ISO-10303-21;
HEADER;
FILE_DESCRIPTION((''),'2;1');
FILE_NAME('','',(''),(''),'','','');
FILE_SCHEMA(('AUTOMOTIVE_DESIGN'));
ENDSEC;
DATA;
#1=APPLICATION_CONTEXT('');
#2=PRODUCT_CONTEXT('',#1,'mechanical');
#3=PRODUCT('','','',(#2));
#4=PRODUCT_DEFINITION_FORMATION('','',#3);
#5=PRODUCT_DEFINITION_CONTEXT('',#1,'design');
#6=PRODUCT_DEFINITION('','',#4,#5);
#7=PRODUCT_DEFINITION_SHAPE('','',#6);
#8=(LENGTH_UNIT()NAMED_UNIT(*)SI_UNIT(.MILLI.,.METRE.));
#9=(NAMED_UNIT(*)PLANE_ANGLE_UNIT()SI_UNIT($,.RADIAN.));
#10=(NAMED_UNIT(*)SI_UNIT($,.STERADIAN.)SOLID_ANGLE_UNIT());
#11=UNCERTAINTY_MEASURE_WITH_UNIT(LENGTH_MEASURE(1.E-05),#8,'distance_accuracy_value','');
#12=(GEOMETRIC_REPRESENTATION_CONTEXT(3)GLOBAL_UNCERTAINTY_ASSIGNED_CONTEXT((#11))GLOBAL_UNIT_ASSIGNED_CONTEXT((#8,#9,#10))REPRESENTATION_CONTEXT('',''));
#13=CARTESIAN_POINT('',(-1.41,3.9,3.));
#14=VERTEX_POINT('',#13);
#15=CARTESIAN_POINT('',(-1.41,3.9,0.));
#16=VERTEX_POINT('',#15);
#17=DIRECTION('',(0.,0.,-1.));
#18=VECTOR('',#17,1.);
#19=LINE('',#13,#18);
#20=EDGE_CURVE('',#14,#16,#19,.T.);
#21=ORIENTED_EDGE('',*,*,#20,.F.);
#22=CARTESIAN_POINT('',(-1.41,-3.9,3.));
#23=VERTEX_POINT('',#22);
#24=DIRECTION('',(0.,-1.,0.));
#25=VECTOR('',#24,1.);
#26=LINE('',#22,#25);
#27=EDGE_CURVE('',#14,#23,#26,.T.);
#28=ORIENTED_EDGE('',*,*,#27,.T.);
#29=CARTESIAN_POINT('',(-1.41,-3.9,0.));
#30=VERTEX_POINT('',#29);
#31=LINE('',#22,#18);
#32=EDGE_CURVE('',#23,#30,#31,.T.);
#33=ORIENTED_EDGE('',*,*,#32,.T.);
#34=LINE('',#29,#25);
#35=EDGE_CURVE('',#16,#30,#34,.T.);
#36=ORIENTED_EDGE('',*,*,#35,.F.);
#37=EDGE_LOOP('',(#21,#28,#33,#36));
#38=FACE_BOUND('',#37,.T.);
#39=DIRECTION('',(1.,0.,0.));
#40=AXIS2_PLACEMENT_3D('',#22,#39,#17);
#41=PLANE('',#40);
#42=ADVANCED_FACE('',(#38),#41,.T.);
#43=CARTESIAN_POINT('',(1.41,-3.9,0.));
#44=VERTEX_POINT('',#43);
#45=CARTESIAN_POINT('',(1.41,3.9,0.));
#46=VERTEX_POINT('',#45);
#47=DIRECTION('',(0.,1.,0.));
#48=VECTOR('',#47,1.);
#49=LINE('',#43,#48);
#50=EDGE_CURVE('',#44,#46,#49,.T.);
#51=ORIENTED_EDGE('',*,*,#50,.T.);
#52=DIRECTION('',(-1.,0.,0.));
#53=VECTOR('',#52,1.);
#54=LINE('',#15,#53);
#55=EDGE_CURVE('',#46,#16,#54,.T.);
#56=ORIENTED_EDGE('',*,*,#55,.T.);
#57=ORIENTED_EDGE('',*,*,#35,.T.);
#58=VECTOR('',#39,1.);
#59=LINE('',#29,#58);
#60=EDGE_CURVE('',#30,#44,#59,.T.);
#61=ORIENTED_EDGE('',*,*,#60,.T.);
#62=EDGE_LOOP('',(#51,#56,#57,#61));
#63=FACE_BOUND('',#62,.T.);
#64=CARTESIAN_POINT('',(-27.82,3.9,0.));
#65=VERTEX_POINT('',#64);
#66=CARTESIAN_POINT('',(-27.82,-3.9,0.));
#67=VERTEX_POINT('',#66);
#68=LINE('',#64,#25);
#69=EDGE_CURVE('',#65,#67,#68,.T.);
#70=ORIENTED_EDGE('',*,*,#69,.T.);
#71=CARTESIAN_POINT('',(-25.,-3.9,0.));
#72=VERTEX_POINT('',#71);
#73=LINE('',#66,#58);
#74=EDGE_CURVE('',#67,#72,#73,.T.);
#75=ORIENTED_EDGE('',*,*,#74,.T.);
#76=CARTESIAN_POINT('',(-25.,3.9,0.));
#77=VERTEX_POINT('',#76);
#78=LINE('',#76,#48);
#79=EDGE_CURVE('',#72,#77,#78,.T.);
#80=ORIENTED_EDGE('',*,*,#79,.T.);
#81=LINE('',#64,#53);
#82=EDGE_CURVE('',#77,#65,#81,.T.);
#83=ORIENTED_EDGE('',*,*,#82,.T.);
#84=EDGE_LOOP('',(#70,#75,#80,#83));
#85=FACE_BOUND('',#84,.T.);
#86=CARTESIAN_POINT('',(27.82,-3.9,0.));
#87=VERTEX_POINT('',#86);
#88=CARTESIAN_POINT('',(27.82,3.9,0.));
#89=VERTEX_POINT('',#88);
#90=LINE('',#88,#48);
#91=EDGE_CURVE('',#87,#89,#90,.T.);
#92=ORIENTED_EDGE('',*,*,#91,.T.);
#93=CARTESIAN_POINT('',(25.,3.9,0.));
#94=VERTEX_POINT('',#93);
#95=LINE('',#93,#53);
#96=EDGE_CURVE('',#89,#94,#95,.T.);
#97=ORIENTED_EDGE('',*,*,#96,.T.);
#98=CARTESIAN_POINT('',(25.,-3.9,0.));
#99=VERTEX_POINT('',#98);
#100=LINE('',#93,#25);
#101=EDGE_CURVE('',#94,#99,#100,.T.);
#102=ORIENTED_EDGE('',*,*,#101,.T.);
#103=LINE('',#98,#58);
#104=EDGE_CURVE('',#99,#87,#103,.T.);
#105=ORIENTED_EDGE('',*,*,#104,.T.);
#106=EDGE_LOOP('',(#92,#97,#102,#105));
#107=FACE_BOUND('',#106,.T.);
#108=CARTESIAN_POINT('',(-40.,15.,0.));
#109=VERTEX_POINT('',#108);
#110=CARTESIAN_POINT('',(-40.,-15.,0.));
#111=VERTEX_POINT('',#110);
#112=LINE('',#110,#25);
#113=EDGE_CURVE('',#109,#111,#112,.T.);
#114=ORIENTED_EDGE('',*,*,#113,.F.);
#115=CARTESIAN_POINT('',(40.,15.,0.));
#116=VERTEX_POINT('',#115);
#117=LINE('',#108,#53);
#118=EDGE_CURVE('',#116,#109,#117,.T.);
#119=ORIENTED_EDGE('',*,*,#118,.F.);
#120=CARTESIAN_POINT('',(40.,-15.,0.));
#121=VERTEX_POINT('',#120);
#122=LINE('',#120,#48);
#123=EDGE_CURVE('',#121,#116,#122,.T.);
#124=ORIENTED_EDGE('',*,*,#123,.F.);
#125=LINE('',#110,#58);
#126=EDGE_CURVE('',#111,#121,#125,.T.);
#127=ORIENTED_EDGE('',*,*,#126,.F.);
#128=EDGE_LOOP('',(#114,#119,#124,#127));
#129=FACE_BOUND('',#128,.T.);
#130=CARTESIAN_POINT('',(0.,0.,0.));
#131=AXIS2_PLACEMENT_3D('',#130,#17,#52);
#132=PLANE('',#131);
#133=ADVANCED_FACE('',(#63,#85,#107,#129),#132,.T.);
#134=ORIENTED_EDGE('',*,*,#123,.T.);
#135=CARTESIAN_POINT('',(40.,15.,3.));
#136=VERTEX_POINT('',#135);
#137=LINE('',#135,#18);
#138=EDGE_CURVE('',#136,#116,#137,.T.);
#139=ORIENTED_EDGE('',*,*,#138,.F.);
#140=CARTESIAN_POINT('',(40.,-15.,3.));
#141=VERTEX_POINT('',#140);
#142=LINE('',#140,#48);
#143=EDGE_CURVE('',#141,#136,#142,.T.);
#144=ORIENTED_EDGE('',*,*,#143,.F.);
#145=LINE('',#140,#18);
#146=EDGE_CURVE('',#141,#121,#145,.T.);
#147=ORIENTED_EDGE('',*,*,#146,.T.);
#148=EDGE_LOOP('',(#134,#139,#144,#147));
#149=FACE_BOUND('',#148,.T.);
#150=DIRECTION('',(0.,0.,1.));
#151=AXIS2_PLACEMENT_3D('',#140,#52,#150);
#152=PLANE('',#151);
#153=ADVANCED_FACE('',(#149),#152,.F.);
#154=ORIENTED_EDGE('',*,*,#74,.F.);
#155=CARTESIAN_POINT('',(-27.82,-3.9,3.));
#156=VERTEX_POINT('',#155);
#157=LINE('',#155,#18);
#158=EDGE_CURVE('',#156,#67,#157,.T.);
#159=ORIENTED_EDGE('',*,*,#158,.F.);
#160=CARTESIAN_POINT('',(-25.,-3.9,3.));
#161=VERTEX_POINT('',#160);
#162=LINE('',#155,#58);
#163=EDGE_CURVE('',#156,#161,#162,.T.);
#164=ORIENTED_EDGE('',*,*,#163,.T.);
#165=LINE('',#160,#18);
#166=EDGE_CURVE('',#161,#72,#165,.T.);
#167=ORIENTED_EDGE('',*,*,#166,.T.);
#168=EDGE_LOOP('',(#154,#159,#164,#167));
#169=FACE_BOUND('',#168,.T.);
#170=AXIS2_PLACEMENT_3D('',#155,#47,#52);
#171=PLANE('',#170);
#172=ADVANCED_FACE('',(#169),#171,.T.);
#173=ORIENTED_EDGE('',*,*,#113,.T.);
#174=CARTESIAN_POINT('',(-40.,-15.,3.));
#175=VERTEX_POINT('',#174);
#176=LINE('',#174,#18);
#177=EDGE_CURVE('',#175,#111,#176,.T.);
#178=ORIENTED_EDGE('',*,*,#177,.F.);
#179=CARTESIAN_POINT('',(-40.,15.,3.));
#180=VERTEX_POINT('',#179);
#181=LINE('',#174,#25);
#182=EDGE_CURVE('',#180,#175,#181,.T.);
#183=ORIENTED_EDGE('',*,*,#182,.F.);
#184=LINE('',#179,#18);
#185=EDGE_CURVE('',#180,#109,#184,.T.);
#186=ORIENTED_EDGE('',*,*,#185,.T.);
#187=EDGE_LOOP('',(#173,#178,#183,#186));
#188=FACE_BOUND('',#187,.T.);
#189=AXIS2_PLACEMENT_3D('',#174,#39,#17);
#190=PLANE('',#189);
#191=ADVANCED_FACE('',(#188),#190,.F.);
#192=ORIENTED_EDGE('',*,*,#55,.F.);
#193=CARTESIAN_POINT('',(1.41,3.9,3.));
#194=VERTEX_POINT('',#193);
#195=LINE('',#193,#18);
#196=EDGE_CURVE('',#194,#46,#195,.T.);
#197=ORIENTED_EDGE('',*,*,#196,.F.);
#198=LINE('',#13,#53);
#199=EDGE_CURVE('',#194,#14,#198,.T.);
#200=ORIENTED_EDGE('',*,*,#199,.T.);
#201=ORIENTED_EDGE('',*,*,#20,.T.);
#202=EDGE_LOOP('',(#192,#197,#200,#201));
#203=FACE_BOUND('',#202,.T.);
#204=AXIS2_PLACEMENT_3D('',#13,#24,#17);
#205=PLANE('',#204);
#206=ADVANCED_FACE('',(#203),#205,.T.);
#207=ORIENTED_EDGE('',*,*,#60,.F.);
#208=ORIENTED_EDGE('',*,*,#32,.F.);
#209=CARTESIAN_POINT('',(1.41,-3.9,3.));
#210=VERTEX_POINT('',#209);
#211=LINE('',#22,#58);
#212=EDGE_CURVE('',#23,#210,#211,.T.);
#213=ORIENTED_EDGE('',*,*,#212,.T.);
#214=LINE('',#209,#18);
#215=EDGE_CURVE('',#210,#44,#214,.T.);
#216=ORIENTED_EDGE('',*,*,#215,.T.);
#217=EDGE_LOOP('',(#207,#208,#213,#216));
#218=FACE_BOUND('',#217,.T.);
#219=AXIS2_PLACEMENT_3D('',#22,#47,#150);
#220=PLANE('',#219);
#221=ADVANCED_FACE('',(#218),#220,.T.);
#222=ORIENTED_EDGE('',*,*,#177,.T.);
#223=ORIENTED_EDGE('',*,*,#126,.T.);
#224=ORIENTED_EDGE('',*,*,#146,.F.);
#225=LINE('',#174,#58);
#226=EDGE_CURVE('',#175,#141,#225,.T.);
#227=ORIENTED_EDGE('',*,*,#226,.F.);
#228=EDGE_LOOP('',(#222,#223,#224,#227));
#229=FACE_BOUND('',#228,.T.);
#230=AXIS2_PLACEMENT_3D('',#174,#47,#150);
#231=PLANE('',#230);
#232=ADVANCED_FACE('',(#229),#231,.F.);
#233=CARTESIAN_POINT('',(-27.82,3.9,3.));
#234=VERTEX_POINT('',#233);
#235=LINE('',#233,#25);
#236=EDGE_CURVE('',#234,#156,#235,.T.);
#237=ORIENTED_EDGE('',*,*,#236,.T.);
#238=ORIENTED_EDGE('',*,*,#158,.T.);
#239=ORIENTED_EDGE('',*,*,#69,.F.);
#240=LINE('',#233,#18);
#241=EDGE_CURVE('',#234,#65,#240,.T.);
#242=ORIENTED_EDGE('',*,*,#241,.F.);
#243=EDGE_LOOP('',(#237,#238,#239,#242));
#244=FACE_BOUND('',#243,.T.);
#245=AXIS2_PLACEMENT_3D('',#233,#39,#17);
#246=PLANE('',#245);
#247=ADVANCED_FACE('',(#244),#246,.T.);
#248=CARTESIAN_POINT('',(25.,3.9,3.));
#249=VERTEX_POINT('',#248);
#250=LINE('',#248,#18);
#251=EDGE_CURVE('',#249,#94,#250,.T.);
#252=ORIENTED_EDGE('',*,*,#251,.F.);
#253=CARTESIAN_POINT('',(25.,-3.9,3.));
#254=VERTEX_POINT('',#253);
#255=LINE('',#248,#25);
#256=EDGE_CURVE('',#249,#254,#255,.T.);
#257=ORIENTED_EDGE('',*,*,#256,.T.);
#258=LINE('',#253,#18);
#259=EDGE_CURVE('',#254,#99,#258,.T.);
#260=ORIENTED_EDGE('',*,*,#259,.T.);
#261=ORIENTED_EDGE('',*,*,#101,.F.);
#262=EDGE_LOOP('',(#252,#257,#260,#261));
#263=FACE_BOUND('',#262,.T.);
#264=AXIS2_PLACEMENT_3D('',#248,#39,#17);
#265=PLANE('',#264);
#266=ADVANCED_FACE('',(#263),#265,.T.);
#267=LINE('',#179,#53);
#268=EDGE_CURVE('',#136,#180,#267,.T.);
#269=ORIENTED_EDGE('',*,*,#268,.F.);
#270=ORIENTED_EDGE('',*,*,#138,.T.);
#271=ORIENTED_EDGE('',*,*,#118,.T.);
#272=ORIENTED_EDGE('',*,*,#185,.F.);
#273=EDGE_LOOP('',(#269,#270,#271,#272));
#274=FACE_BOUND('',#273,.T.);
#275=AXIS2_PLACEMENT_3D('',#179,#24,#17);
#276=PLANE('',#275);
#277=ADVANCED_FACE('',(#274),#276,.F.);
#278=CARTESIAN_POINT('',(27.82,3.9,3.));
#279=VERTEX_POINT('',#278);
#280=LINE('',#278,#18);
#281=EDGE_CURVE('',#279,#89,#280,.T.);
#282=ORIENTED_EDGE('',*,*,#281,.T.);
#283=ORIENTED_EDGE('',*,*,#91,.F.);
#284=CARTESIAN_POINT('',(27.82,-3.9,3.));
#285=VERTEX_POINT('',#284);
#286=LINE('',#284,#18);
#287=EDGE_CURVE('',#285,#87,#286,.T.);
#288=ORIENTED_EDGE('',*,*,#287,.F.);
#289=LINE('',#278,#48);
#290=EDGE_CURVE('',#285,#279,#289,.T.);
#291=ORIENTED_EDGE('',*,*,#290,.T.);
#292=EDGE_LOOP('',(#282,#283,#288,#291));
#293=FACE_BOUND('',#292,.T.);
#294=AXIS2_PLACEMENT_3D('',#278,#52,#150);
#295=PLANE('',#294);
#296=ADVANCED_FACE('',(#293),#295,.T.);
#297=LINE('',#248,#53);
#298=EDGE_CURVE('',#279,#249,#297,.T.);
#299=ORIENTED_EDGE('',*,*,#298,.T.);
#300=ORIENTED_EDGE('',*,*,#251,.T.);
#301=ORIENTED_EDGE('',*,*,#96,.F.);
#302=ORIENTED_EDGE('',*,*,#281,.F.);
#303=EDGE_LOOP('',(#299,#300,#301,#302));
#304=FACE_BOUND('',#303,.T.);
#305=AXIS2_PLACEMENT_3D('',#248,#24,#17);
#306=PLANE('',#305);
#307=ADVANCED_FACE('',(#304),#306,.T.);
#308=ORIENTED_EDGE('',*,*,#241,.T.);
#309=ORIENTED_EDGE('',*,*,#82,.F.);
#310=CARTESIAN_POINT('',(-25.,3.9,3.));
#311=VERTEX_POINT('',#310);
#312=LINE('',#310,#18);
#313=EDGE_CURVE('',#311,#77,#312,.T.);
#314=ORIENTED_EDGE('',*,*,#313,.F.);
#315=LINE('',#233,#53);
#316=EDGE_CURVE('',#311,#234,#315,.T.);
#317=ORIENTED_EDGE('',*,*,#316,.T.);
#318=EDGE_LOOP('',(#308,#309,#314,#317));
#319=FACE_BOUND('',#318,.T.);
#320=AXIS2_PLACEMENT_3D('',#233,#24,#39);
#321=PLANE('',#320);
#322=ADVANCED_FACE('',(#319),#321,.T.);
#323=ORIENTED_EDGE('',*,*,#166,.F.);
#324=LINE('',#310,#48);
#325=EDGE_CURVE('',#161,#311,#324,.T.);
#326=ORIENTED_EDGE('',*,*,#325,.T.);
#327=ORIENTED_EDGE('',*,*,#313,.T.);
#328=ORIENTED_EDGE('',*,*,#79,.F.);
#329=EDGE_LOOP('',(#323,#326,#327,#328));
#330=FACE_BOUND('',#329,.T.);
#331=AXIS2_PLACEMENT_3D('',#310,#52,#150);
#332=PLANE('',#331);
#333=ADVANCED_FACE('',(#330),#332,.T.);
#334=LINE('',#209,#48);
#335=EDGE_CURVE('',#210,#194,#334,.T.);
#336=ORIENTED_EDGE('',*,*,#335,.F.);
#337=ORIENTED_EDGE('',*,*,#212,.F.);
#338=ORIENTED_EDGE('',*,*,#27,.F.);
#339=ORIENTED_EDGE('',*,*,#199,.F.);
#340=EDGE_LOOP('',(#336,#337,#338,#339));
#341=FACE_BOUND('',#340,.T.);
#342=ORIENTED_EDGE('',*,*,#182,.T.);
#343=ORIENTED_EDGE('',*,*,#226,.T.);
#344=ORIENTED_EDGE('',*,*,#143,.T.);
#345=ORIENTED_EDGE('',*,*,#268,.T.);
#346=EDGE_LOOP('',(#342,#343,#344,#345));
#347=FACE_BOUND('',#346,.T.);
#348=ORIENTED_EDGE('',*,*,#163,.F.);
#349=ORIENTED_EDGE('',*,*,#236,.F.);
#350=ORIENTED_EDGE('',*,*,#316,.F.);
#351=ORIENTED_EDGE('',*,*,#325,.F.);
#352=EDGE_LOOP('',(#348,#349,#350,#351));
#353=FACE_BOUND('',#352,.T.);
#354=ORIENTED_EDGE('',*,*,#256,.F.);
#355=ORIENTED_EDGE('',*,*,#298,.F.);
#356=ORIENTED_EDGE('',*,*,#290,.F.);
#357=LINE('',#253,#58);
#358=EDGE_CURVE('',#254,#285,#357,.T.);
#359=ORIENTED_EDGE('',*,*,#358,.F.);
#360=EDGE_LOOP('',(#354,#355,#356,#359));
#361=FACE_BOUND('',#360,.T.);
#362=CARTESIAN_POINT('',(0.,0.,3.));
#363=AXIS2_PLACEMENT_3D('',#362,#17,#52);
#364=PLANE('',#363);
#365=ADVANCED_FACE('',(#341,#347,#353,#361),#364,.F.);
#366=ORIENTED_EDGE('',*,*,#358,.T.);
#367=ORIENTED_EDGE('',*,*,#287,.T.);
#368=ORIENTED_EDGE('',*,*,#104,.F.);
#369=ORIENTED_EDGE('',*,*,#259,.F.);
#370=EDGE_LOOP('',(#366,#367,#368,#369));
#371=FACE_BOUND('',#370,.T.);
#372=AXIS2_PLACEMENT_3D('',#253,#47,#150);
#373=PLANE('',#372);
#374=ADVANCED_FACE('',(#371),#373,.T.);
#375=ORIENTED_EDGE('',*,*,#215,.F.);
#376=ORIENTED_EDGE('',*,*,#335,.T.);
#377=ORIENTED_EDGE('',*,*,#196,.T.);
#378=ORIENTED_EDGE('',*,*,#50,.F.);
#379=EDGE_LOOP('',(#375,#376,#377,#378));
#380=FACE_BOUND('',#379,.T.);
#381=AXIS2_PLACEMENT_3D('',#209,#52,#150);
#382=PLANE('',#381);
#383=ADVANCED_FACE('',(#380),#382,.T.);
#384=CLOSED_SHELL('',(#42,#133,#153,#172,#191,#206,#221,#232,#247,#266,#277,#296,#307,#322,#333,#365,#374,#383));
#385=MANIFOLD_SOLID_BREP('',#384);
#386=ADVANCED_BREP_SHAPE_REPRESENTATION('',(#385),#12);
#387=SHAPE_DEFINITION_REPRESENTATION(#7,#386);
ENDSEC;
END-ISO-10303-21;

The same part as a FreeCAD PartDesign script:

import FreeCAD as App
import Part
import Sketcher
from FreeCAD import Vector
Q = App.Units.Quantity


def add_polygon(sketch, points):
    """Adds a closed chain of lines whose ends are joined by coincident constraints."""
    first, n = sketch.GeometryCount, len(points)
    for a, b in zip(points, points[1:] + points[:1]):
        sketch.addGeometry(Part.LineSegment(App.Vector(*a, 0), App.Vector(*b, 0)), False)
    for i in range(n):
        sketch.addConstraint(Sketcher.Constraint("Coincident", first + i, 2, first + (i + 1) % n, 1))

doc = App.newDocument("Part")
body = doc.addObject("PartDesign::Body", "Body")

# Sketch on XY plane
sketch1 = body.newObject("Sketcher::SketchObject", "Sketch")
sketch1.AttachmentSupport = (doc.getObject("XY_Plane"), [""])
sketch1.MapMode = "FlatFace"
add_polygon(sketch1, [(-40, 15), (-40, -15), (40, -15), (40, 15)])  # lines 0-3
add_polygon(sketch1, [(-25, -3.9), (-27.8, -3.9), (-27.8, 3.9), (-25, 3.9)])  # lines 4-7
add_polygon(sketch1, [(1.4, -3.9), (-1.4, -3.9), (-1.4, 3.9), (1.4, 3.9)])  # lines 8-11
add_polygon(sketch1, [(27.8, -3.9), (25, -3.9), (25, 3.9), (27.8, 3.9)])  # lines 12-15
sketch1.addConstraint([
    Sketcher.Constraint("Vertical", 0),
    Sketcher.Constraint("Horizontal", 1),
    Sketcher.Constraint("Vertical", 2),
    Sketcher.Constraint("Horizontal", 3),
    Sketcher.Constraint("Horizontal", 4),
    Sketcher.Constraint("Vertical", 5),
    Sketcher.Constraint("Horizontal", 6),
    Sketcher.Constraint("Vertical", 7),
    Sketcher.Constraint("Horizontal", 8),
    Sketcher.Constraint("Vertical", 9),
    Sketcher.Constraint("Horizontal", 10),
    Sketcher.Constraint("Vertical", 11),
    Sketcher.Constraint("Horizontal", 12),
    Sketcher.Constraint("Vertical", 13),
    Sketcher.Constraint("Horizontal", 14),
    Sketcher.Constraint("Vertical", 15),
    Sketcher.Constraint("Symmetric", 0, 2, 2, 2, -1, 1),
    Sketcher.Constraint("Symmetric", 8, 2, 10, 2, -1, 1),
    Sketcher.Constraint("Symmetric", 6, 2, 12, 2, -1, 1),
    Sketcher.Constraint("Symmetric", 4, 2, 14, 2, -1, 1),
    Sketcher.Constraint("Horizontal", 7, 2, 8, 2),
    Sketcher.Constraint("Horizontal", 6, 2, 9, 2),
    Sketcher.Constraint("Equal", 6, 8),
    Sketcher.Constraint("DistanceX", 1, 1, 1, 2, Q("80 mm")),
    Sketcher.Constraint("DistanceY", 0, 2, 0, 1, Q("30 mm")),
    Sketcher.Constraint("DistanceY", 5, 1, 5, 2, Q("7.8 mm")),
    Sketcher.Constraint("DistanceX", 6, 2, -1, 1, Q("25 mm")),
    Sketcher.Constraint("DistanceX", 4, 2, 4, 1, Q("2.82 mm")),
])
pad1 = body.newObject("PartDesign::Pad", "Pad")
pad1.Profile = sketch1
pad1.Length = 3

doc.recompute()
